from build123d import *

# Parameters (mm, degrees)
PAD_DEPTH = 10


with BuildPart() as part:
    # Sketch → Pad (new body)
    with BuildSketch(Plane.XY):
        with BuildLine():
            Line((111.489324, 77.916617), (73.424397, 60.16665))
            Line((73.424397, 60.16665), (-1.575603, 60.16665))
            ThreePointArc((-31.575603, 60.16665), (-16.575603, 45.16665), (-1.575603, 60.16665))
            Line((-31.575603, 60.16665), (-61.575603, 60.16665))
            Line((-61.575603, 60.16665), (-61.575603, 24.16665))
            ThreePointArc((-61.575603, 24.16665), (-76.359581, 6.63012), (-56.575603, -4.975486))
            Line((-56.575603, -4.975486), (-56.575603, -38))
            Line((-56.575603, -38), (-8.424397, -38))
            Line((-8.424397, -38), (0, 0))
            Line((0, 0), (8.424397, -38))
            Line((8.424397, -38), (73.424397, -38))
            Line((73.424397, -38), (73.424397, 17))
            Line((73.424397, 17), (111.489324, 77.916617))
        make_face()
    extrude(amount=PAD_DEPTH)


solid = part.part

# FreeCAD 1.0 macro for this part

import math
import FreeCAD as App
import Part
import Sketcher

V = App.Vector
Q = App.Units.Quantity

doc = App.newDocument("Part")
body = doc.addObject("PartDesign::Body", "Body")

# Sketch on XY plane
sketch1 = body.newObject("Sketcher::SketchObject", "Sketch")
sketch1.AttachmentSupport = (doc.getObject("XY_Plane"), [""])
sketch1.MapMode = "FlatFace"
sketch1.addGeometry(Part.LineSegment(V(111, 78, 0), V(73, 60, 0)), False)
sketch1.addGeometry(Part.LineSegment(V(73, 60, 0), V(-2, 60, 0)), False)
sketch1.addGeometry(Part.ArcOfCircle(Part.Circle(V(-17, 60, 0), V(0, 0, 1), 15), math.radians(180), math.radians(360)), False)
sketch1.addGeometry(Part.LineSegment(V(-32, 60, 0), V(-62, 60, 0)), False)
sketch1.addGeometry(Part.LineSegment(V(-62, 60, 0), V(-62, 24, 0)), False)
sketch1.addGeometry(Part.ArcOfCircle(Part.Circle(V(-62, 9, 0), V(0, 0, 1), 15), math.radians(90), math.radians(289)), False)
sketch1.addGeometry(Part.LineSegment(V(-57, -5, 0), V(-57, -38, 0)), False)
sketch1.addGeometry(Part.LineSegment(V(-57, -38, 0), V(-8, -38, 0)), False)
sketch1.addGeometry(Part.LineSegment(V(-8, -38, 0), V(0, 0, 0)), False)
sketch1.addGeometry(Part.LineSegment(V(0, 0, 0), V(8, -38, 0)), False)
sketch1.addGeometry(Part.LineSegment(V(8, -38, 0), V(73, -38, 0)), False)
sketch1.addGeometry(Part.LineSegment(V(73, -38, 0), V(73, 17, 0)), False)
sketch1.addGeometry(Part.LineSegment(V(73, 17, 0), V(111, 78, 0)), False)
sketch1.addConstraint(Sketcher.Constraint("Coincident", 0, 2, 1, 1))
sketch1.addConstraint(Sketcher.Constraint("Coincident", 1, 2, 2, 2))
sketch1.addConstraint(Sketcher.Constraint("Coincident", 2, 1, 3, 1))
sketch1.addConstraint(Sketcher.Constraint("Coincident", 3, 2, 4, 1))
sketch1.addConstraint(Sketcher.Constraint("Coincident", 4, 2, 5, 1))
sketch1.addConstraint(Sketcher.Constraint("Coincident", 5, 2, 6, 1))
sketch1.addConstraint(Sketcher.Constraint("Coincident", 6, 2, 7, 1))
sketch1.addConstraint(Sketcher.Constraint("Coincident", 7, 2, 8, 1))
sketch1.addConstraint(Sketcher.Constraint("Coincident", 8, 2, 9, 1))
sketch1.addConstraint(Sketcher.Constraint("Coincident", 9, 2, 10, 1))
sketch1.addConstraint(Sketcher.Constraint("Coincident", 10, 2, 11, 1))
sketch1.addConstraint(Sketcher.Constraint("Coincident", 11, 2, 12, 1))
sketch1.addConstraint(Sketcher.Constraint("Coincident", 12, 2, 0, 1))
sketch1.addConstraint(Sketcher.Constraint("Horizontal", 1))
sketch1.addConstraint(Sketcher.Constraint("Horizontal", 3))
sketch1.addConstraint(Sketcher.Constraint("Vertical", 4))
sketch1.addConstraint(Sketcher.Constraint("Vertical", 6))
sketch1.addConstraint(Sketcher.Constraint("Horizontal", 7))
sketch1.addConstraint(Sketcher.Constraint("Horizontal", 10))
sketch1.addConstraint(Sketcher.Constraint("Vertical", 11))
sketch1.addConstraint(Sketcher.Constraint("Coincident", 8, 2, -1, 1))
sketch1.addConstraint(Sketcher.Constraint("Equal", 2, 5))
sketch1.addConstraint(Sketcher.Constraint("Symmetric", 7, 2, 9, 2, -2))
sketch1.addConstraint(Sketcher.Constraint("Horizontal", 2, 3, 0, 2))
sketch1.addConstraint(Sketcher.Constraint("Horizontal", 1, 2, 2, 1))
sketch1.addConstraint(Sketcher.Constraint("Vertical", 5, 3, 3, 2))
sketch1.addConstraint(Sketcher.Constraint("Vertical", 0, 2, 10, 2))
sketch1.addConstraint(Sketcher.Constraint("Radius", 2, Q("15 mm")))
sketch1.addConstraint(Sketcher.Constraint("DistanceX", 1, 2, 1, 1, Q("75 mm")))
sketch1.addConstraint(Sketcher.Constraint("DistanceX", 3, 2, 3, 1, Q("30 mm")))
sketch1.addConstraint(Sketcher.Constraint("DistanceX", 10, 1, 10, 2, Q("65 mm")))
sketch1.addConstraint(Sketcher.Constraint("DistanceY", 4, 2, 4, 1, Q("36 mm")))
sketch1.addConstraint(Sketcher.Constraint("DistanceY", 11, 1, 11, 2, Q("55 mm")))
sketch1.addConstraint(Sketcher.Constraint("Angle", 0, Q("-155 deg")))
sketch1.addConstraint(Sketcher.Constraint("Angle", 12, Q("58 deg")))
sketch1.addConstraint(Sketcher.Constraint("Distance", 0, Q("42 mm")))
sketch1.addConstraint(Sketcher.Constraint("DistanceY", 6, 2, -1, 1, Q("38 mm")))
sketch1.addConstraint(Sketcher.Constraint("Angle", 8, Q("77.5 deg")))
sketch1.addConstraint(Sketcher.Constraint("DistanceX", 5, 3, 5, 2, Q("5 mm")))
pad1 = body.newObject("PartDesign::Pad", "Pad")
pad1.Profile = sketch1
pad1.Length = 10

doc.recompute()
